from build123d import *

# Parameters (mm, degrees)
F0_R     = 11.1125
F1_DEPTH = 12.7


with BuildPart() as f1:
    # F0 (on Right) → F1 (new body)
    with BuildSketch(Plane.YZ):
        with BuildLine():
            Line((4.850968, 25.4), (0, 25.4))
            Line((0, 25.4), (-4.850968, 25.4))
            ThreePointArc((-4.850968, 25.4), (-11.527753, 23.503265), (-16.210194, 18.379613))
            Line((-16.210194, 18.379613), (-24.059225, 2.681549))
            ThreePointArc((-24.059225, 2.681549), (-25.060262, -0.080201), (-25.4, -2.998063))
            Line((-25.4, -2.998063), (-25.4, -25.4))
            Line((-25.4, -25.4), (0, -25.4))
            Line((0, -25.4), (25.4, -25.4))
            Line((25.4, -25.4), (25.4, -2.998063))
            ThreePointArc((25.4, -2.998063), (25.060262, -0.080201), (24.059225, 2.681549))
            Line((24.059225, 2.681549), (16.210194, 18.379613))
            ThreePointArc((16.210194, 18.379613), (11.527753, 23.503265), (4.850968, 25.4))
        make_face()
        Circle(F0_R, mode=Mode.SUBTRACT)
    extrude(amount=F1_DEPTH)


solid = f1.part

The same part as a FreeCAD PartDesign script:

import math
import FreeCAD as App
import Part
import Sketcher
from FreeCAD import Vector
Q = App.Units.Quantity

doc = App.newDocument("Part")
body = doc.addObject("PartDesign::Body", "Body")

# Sketch on YZ plane
sketch1 = body.newObject("Sketcher::SketchObject", "Sketch")
sketch1.AttachmentSupport = (doc.getObject("YZ_Plane"), [""])
sketch1.MapMode = "FlatFace"
sketch1.addGeometry([
    Part.LineSegment(Vector(5, 25, 0), Vector(-5, 25, 0)),  # 0
    Part.ArcOfCircle(Part.Circle(Vector(-5, 13, 0), Vector(0, 0, 1), 13), math.radians(90), math.radians(153)),  # 1
    Part.LineSegment(Vector(-16, 18, 0), Vector(-24, 3, 0)),  # 2
    Part.ArcOfCircle(Part.Circle(Vector(-13, -3, 0), Vector(0, 0, 1), 13), math.radians(153), math.radians(180)),  # 3
    Part.LineSegment(Vector(-25, -3, 0), Vector(-25, -25, 0)),  # 4
    Part.LineSegment(Vector(-25, -25, 0), Vector(25, -25, 0)),  # 5
    Part.LineSegment(Vector(25, -25, 0), Vector(25, -3, 0)),  # 6
    Part.ArcOfCircle(Part.Circle(Vector(13, -3, 0), Vector(0, 0, 1), 13), math.radians(0), math.radians(27)),  # 7
    Part.LineSegment(Vector(24, 3, 0), Vector(16, 18, 0)),  # 8
    Part.ArcOfCircle(Part.Circle(Vector(5, 13, 0), Vector(0, 0, 1), 13), math.radians(27), math.radians(90)),  # 9
    Part.Circle(Vector(0, 0, 0), Vector(0, 0, 1), 11),  # 10
], False)
sketch1.addConstraint([
    Sketcher.Constraint("Tangent", 0, 2, 1, 1),
    Sketcher.Constraint("Tangent", 1, 2, 2, 1),
    Sketcher.Constraint("Tangent", 2, 2, 3, 1),
    Sketcher.Constraint("Tangent", 3, 2, 4, 1),
    Sketcher.Constraint("Coincident", 4, 2, 5, 1),
    Sketcher.Constraint("Coincident", 5, 2, 6, 1),
    Sketcher.Constraint("Tangent", 6, 2, 7, 1),
    Sketcher.Constraint("Tangent", 7, 2, 8, 1),
    Sketcher.Constraint("Tangent", 8, 2, 9, 1),
    Sketcher.Constraint("Tangent", 9, 2, 0, 1),
    Sketcher.Constraint("Horizontal", 0),
    Sketcher.Constraint("Vertical", 4),
    Sketcher.Constraint("Horizontal", 5),
    Sketcher.Constraint("Vertical", 6),
    Sketcher.Constraint("Coincident", 10, 3, -1, 1),
    Sketcher.Constraint("Equal", 3, 7),
    Sketcher.Constraint("Equal", 1, 9),
    Sketcher.Constraint("Symmetric", 3, 3, 7, 3, -2),
    Sketcher.Constraint("Horizontal", 2, 2, 7, 2),
    Sketcher.Constraint("Radius", 1, Q("0.5000002 in")),
    Sketcher.Constraint("Radius", 3, Q("0.4999998 in")),
    Sketcher.Constraint("DistanceX", 5, 1, 5, 2, Q("2 in")),
    Sketcher.Constraint("Diameter", 10, Q("0.875 in")),
    Sketcher.Constraint("DistanceY", -1, 1, 0, 2, Q("1 in")),
    Sketcher.Constraint("DistanceY", 4, 2, -1, 1, Q("1 in")),
    Sketcher.Constraint("Distance", 2, Q("17.550969 mm")),
    Sketcher.Constraint("DistanceX", 0, 2, 0, 1, Q("9.701936 mm")),
])
pad1 = body.newObject("PartDesign::Pad", "Pad")
pad1.Profile = sketch1
pad1.Length = Q("0.5 in")

doc.recompute()
